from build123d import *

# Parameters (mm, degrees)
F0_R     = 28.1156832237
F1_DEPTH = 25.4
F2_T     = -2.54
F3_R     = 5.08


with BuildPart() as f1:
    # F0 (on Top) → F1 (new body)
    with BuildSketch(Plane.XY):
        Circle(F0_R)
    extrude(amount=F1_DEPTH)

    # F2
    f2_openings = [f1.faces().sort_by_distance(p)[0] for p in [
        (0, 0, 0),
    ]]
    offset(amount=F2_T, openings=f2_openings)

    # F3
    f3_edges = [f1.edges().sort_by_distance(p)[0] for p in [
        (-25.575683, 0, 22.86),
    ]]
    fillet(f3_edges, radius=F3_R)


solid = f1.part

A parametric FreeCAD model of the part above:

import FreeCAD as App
import Part
import Sketcher

V = App.Vector
Q = App.Units.Quantity


def edges_at(feature, points):
    """Names of the edges that pass closest to the given points."""
    edges = feature.Shape.Edges
    near = lambda p: min(range(len(edges)), key=lambda i: edges[i].distToShape(Part.Vertex(*p))[0])
    return sorted({f"Edge{near(p) + 1}" for p in points})


def faces_at(feature, points):
    """Names of the faces that lie closest to the given points."""
    faces = feature.Shape.Faces
    near = lambda p: min(range(len(faces)), key=lambda i: faces[i].distToShape(Part.Vertex(*p))[0])
    return sorted({f"Face{near(p) + 1}" for p in points})

doc = App.newDocument("Part")
params = doc.addObject("Spreadsheet::Sheet", "Params")
for row, (alias, value) in enumerate([
    ("pad1_length", "1 in"),
    ("thickness_wall", "0.1 in"),
    ("fillet_radius", "0.2 in"),
], start=1):
    params.set(f"A{row}", alias)
    params.set(f"B{row}", "=" + value)
    params.setAlias(f"B{row}", alias)

body = doc.addObject("PartDesign::Body", "Body")

# Sketch on XY plane
sketch1 = doc.addObject("Sketcher::SketchObject", "Sketch")
body.addObject(sketch1)
sketch1.AttachmentSupport = (doc.XY_Plane, [""])
sketch1.MapMode = "FlatFace"
sketch1.addGeometry(Part.Circle(V(0, 0, 0), V(0, 0, 1), 28.115683), False)
sketch1.addConstraint(Sketcher.Constraint("Coincident", 0, 3, -1, 1))
sketch1.addConstraint(Sketcher.Constraint("Diameter", 0, Q("56.231366 mm")))
pad1 = doc.addObject("PartDesign::Pad", "Pad")
body.addObject(pad1)
pad1.Profile = sketch1
pad1.setExpression("Length", "Params.pad1_length")
doc.recompute()

thickness = doc.addObject("PartDesign::Thickness", "Thickness")
body.addObject(thickness)
thickness.Base = (pad1, faces_at(pad1, [(0, 0, 0)]))
thickness.setExpression("Value", "Params.thickness_wall")
thickness.Reversed = True
thickness.Join = "Arc"
doc.recompute()

fillet = doc.addObject("PartDesign::Fillet", "Fillet")
body.addObject(fillet)
fillet.Base = (thickness, edges_at(thickness, [(-25.576, 0, 22.86)]))
fillet.setExpression("Radius", "Params.fillet_radius")

doc.recompute()
